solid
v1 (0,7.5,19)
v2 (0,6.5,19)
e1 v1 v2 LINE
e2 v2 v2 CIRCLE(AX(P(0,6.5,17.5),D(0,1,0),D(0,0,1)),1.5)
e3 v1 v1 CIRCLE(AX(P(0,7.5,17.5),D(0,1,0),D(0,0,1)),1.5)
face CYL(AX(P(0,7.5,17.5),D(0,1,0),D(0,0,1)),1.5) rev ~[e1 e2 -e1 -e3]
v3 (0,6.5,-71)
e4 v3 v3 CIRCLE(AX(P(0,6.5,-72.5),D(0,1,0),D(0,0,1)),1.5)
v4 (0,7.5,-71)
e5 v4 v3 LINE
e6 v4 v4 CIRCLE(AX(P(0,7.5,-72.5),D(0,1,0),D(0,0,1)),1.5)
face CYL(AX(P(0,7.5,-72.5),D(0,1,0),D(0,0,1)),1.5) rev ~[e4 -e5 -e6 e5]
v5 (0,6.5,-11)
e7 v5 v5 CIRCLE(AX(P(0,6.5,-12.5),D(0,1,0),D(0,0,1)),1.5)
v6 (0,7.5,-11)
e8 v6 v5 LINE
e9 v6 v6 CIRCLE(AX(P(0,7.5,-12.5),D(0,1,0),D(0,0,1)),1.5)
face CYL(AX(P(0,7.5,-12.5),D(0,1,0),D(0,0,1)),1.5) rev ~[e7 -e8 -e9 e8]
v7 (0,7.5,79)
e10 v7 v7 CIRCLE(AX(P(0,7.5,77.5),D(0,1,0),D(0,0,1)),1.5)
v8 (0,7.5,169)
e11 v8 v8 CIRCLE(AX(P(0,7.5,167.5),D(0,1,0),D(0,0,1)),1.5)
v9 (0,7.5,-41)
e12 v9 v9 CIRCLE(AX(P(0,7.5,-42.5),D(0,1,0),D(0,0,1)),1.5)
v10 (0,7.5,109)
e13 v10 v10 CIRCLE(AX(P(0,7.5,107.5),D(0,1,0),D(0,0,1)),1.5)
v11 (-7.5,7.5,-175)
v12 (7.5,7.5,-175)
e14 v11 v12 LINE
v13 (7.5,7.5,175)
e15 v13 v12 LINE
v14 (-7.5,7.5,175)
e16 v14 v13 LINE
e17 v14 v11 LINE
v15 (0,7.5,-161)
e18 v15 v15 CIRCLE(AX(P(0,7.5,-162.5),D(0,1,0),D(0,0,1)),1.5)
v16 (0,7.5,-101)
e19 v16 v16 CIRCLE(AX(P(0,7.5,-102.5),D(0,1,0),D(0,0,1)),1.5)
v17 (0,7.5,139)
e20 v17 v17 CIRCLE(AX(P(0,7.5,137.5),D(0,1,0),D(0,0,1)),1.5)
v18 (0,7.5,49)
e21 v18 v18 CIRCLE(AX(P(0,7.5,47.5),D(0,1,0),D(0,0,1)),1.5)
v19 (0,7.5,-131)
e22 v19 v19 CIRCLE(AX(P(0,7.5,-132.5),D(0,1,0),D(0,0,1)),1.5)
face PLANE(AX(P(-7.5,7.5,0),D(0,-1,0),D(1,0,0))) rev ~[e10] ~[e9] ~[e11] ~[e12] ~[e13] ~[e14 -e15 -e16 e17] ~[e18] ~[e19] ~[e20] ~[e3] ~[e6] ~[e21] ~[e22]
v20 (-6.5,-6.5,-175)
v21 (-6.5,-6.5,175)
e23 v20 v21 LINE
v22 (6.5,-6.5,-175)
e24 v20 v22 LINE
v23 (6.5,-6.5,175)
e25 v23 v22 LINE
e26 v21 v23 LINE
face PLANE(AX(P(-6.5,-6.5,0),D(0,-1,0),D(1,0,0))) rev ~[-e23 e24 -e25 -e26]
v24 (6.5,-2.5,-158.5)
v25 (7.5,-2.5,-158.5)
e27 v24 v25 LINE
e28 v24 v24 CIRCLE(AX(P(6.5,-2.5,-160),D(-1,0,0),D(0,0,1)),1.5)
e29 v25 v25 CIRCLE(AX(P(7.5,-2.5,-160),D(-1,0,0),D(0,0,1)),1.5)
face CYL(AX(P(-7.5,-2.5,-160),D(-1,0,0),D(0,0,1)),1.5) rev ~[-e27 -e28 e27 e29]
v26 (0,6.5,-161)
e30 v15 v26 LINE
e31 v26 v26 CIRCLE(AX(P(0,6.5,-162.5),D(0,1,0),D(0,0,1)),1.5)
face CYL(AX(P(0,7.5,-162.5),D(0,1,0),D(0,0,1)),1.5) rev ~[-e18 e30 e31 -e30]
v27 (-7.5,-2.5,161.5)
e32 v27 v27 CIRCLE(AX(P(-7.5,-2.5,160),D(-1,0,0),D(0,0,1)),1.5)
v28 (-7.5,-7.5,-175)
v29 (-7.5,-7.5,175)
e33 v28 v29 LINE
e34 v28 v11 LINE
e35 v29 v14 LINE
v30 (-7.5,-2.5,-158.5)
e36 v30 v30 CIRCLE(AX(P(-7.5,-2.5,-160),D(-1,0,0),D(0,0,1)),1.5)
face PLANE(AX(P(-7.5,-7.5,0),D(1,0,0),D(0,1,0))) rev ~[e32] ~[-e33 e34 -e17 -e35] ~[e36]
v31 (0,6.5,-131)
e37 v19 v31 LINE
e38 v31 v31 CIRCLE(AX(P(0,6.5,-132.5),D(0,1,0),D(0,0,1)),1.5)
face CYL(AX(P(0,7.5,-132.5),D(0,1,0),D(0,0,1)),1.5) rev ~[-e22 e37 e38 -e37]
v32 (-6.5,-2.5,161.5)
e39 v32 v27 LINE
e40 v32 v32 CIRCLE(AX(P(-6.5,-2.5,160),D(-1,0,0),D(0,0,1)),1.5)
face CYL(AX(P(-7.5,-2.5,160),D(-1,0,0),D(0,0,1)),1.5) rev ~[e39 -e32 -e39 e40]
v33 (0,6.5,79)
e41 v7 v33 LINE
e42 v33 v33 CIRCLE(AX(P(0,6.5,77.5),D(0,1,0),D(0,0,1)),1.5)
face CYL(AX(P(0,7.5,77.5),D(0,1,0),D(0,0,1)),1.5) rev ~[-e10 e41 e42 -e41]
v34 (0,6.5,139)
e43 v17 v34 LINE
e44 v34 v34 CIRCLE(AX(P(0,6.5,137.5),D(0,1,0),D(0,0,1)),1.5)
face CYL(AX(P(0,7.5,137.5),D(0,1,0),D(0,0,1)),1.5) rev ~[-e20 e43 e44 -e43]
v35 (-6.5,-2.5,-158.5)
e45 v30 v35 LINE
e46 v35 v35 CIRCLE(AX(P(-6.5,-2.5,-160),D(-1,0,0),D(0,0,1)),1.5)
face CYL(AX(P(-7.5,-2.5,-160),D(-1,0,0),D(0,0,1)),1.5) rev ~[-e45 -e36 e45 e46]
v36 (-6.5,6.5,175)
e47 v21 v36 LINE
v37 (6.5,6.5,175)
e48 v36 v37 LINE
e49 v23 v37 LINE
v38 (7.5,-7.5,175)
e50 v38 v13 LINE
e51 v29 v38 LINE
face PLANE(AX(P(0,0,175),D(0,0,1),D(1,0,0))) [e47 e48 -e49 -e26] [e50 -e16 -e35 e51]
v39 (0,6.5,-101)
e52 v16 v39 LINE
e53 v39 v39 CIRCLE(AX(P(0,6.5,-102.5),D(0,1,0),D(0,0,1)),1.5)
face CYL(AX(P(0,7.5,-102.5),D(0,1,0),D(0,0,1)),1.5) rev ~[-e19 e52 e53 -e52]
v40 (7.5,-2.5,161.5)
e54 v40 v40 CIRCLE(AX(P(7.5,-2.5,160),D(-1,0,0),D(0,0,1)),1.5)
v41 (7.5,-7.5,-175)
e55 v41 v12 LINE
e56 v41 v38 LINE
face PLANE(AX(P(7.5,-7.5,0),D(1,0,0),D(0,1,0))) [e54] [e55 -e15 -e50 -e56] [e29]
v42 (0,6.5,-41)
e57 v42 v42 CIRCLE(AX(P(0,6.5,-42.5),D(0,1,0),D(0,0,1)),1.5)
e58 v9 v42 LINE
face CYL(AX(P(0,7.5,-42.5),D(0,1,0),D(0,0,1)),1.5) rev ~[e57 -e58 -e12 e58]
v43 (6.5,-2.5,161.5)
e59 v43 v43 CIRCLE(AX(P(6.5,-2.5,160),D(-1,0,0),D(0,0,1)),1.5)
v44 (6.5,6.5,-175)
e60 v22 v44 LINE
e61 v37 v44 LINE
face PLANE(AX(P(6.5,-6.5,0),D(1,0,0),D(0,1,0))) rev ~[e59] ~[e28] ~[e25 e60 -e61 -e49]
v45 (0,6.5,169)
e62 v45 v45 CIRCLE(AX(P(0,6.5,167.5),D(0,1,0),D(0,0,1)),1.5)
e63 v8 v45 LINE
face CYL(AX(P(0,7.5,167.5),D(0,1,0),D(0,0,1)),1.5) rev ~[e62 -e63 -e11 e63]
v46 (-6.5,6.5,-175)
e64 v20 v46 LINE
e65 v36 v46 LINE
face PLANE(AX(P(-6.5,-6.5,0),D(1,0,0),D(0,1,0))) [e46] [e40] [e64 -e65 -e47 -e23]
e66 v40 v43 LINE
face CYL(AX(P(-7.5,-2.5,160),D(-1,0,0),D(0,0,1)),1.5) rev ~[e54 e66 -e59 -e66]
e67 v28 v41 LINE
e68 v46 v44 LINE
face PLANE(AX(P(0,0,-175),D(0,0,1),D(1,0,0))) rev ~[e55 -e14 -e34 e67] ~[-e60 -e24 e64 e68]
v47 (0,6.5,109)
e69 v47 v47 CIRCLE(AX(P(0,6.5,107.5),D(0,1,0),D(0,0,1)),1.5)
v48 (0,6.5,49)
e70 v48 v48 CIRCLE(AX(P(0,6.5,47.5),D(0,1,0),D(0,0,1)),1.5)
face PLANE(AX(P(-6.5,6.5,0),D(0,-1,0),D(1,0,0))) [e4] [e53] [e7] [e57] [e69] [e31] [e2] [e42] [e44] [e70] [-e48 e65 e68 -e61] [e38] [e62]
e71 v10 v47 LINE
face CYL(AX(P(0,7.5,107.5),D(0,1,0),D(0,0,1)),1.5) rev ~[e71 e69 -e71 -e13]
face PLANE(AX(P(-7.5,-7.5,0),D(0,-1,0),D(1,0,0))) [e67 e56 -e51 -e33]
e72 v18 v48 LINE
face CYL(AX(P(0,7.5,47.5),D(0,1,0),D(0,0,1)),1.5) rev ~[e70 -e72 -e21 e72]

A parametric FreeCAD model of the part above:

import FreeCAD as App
import Part
import Sketcher
from FreeCAD import Vector


def add_polygon(sketch, points):
    """Adds a closed chain of lines whose ends are joined by coincident constraints."""
    first, n = sketch.GeometryCount, len(points)
    for a, b in zip(points, points[1:] + points[:1]):
        sketch.addGeometry(Part.LineSegment(App.Vector(*a, 0), App.Vector(*b, 0)), False)
    for i in range(n):
        sketch.addConstraint(Sketcher.Constraint("Coincident", first + i, 2, first + (i + 1) % n, 1))

doc = App.newDocument("Part")
body = doc.addObject("PartDesign::Body", "Body")

# Sketch on XY plane
sketch1 = doc.addObject("Sketcher::SketchObject", "Sketch")
body.addObject(sketch1)
sketch1.AttachmentSupport = (doc.XY_Plane, [""])
sketch1.MapMode = "FlatFace"
add_polygon(sketch1, [(-8, 8), (-8, -8), (8, -8), (8, 8)])  # lines 0-3
add_polygon(sketch1, [(6, -6), (-6, -6), (-6, 6), (6, 6)])  # lines 4-7
sketch1.addConstraint([
    Sketcher.Constraint("Vertical", 0),
    Sketcher.Constraint("Horizontal", 1),
    Sketcher.Constraint("Vertical", 2),
    Sketcher.Constraint("Horizontal", 3),
    Sketcher.Constraint("Horizontal", 4),
    Sketcher.Constraint("Vertical", 5),
    Sketcher.Constraint("Horizontal", 6),
    Sketcher.Constraint("Vertical", 7),
    Sketcher.Constraint("Symmetric", 0, 2, 2, 2, -1, 1),
    Sketcher.Constraint("Symmetric", 4, 2, 6, 2, -1, 1),
    Sketcher.Constraint("Equal", 3, 0),
    Sketcher.Constraint("Equal", 6, 5),
    Sketcher.Constraint("DistanceX", 1, 1, 1, 2, 15.0),
    Sketcher.Constraint("DistanceX", 4, 2, 4, 1, 13.0),
])
pad1 = doc.addObject("PartDesign::Pad", "Pad")
body.addObject(pad1)
pad1.Profile = sketch1
pad1.Length = 350
pad1.Midplane = True

# Sketch on YZ plane
sketch2 = doc.addObject("Sketcher::SketchObject", "Sketch001")
body.addObject(sketch2)
sketch2.AttachmentSupport = (doc.YZ_Plane, [""])
sketch2.MapMode = "FlatFace"
sketch2.AttachmentOffset = App.Placement(Vector(0, 0, -7.5), App.Rotation())
sketch2.addGeometry([
    Part.Circle(Vector(-2.5, -160, 0), Vector(0, 0, 1), 1.5),
    Part.Circle(Vector(-2.5, 160, 0), Vector(0, 0, 1), 1.5),
], False)
sketch2.addConstraint([
    Sketcher.Constraint("Equal", 0, 1),
    Sketcher.Constraint("Symmetric", 0, 3, 1, 3, -1),
    Sketcher.Constraint("Diameter", 0, 3.0),
    Sketcher.Constraint("DistanceY", 0, 3, -1, 1, 160.0),
    Sketcher.Constraint("DistanceX", 0, 3, -1, 1, 2.5),
])
pocket1 = doc.addObject("PartDesign::Pocket", "Pocket")
body.addObject(pocket1)
pocket1.Profile = sketch2
pocket1.Length = 60
pocket1.Midplane = True

# Sketch on XZ plane
sketch3 = doc.addObject("Sketcher::SketchObject", "Sketch002")
body.addObject(sketch3)
sketch3.AttachmentSupport = (doc.XZ_Plane, [""])
sketch3.MapMode = "FlatFace"
sketch3.AttachmentOffset = App.Placement(Vector(0, 0, -7.5), App.Rotation())
sketch3.addGeometry(Part.Circle(Vector(0, 167.5, 0), Vector(0, 0, 1), 1.5), False)
sketch3.addConstraint([
    Sketcher.Constraint("PointOnObject", 0, 3, -2),
    Sketcher.Constraint("Diameter", 0, 3.0),
    Sketcher.Constraint("DistanceY", -1, 1, 0, 3, 167.5),
])
pocket2 = doc.addObject("PartDesign::Pocket", "Pocket001")
body.addObject(pocket2)
pocket2.Profile = sketch3
pocket2.Length = 5
pocket2.Reversed = True
doc.recompute()

linearpattern = doc.addObject("PartDesign::LinearPattern", "LinearPattern")
body.addObject(linearpattern)
linearpattern.Originals = [pocket2]
linearpattern.Direction = (doc.Z_Axis, [""])
linearpattern.Mode = "offset"
linearpattern.Offset = 30
linearpattern.Occurrences = 12
linearpattern.Reversed = True
body.Tip = linearpattern

doc.recompute()
